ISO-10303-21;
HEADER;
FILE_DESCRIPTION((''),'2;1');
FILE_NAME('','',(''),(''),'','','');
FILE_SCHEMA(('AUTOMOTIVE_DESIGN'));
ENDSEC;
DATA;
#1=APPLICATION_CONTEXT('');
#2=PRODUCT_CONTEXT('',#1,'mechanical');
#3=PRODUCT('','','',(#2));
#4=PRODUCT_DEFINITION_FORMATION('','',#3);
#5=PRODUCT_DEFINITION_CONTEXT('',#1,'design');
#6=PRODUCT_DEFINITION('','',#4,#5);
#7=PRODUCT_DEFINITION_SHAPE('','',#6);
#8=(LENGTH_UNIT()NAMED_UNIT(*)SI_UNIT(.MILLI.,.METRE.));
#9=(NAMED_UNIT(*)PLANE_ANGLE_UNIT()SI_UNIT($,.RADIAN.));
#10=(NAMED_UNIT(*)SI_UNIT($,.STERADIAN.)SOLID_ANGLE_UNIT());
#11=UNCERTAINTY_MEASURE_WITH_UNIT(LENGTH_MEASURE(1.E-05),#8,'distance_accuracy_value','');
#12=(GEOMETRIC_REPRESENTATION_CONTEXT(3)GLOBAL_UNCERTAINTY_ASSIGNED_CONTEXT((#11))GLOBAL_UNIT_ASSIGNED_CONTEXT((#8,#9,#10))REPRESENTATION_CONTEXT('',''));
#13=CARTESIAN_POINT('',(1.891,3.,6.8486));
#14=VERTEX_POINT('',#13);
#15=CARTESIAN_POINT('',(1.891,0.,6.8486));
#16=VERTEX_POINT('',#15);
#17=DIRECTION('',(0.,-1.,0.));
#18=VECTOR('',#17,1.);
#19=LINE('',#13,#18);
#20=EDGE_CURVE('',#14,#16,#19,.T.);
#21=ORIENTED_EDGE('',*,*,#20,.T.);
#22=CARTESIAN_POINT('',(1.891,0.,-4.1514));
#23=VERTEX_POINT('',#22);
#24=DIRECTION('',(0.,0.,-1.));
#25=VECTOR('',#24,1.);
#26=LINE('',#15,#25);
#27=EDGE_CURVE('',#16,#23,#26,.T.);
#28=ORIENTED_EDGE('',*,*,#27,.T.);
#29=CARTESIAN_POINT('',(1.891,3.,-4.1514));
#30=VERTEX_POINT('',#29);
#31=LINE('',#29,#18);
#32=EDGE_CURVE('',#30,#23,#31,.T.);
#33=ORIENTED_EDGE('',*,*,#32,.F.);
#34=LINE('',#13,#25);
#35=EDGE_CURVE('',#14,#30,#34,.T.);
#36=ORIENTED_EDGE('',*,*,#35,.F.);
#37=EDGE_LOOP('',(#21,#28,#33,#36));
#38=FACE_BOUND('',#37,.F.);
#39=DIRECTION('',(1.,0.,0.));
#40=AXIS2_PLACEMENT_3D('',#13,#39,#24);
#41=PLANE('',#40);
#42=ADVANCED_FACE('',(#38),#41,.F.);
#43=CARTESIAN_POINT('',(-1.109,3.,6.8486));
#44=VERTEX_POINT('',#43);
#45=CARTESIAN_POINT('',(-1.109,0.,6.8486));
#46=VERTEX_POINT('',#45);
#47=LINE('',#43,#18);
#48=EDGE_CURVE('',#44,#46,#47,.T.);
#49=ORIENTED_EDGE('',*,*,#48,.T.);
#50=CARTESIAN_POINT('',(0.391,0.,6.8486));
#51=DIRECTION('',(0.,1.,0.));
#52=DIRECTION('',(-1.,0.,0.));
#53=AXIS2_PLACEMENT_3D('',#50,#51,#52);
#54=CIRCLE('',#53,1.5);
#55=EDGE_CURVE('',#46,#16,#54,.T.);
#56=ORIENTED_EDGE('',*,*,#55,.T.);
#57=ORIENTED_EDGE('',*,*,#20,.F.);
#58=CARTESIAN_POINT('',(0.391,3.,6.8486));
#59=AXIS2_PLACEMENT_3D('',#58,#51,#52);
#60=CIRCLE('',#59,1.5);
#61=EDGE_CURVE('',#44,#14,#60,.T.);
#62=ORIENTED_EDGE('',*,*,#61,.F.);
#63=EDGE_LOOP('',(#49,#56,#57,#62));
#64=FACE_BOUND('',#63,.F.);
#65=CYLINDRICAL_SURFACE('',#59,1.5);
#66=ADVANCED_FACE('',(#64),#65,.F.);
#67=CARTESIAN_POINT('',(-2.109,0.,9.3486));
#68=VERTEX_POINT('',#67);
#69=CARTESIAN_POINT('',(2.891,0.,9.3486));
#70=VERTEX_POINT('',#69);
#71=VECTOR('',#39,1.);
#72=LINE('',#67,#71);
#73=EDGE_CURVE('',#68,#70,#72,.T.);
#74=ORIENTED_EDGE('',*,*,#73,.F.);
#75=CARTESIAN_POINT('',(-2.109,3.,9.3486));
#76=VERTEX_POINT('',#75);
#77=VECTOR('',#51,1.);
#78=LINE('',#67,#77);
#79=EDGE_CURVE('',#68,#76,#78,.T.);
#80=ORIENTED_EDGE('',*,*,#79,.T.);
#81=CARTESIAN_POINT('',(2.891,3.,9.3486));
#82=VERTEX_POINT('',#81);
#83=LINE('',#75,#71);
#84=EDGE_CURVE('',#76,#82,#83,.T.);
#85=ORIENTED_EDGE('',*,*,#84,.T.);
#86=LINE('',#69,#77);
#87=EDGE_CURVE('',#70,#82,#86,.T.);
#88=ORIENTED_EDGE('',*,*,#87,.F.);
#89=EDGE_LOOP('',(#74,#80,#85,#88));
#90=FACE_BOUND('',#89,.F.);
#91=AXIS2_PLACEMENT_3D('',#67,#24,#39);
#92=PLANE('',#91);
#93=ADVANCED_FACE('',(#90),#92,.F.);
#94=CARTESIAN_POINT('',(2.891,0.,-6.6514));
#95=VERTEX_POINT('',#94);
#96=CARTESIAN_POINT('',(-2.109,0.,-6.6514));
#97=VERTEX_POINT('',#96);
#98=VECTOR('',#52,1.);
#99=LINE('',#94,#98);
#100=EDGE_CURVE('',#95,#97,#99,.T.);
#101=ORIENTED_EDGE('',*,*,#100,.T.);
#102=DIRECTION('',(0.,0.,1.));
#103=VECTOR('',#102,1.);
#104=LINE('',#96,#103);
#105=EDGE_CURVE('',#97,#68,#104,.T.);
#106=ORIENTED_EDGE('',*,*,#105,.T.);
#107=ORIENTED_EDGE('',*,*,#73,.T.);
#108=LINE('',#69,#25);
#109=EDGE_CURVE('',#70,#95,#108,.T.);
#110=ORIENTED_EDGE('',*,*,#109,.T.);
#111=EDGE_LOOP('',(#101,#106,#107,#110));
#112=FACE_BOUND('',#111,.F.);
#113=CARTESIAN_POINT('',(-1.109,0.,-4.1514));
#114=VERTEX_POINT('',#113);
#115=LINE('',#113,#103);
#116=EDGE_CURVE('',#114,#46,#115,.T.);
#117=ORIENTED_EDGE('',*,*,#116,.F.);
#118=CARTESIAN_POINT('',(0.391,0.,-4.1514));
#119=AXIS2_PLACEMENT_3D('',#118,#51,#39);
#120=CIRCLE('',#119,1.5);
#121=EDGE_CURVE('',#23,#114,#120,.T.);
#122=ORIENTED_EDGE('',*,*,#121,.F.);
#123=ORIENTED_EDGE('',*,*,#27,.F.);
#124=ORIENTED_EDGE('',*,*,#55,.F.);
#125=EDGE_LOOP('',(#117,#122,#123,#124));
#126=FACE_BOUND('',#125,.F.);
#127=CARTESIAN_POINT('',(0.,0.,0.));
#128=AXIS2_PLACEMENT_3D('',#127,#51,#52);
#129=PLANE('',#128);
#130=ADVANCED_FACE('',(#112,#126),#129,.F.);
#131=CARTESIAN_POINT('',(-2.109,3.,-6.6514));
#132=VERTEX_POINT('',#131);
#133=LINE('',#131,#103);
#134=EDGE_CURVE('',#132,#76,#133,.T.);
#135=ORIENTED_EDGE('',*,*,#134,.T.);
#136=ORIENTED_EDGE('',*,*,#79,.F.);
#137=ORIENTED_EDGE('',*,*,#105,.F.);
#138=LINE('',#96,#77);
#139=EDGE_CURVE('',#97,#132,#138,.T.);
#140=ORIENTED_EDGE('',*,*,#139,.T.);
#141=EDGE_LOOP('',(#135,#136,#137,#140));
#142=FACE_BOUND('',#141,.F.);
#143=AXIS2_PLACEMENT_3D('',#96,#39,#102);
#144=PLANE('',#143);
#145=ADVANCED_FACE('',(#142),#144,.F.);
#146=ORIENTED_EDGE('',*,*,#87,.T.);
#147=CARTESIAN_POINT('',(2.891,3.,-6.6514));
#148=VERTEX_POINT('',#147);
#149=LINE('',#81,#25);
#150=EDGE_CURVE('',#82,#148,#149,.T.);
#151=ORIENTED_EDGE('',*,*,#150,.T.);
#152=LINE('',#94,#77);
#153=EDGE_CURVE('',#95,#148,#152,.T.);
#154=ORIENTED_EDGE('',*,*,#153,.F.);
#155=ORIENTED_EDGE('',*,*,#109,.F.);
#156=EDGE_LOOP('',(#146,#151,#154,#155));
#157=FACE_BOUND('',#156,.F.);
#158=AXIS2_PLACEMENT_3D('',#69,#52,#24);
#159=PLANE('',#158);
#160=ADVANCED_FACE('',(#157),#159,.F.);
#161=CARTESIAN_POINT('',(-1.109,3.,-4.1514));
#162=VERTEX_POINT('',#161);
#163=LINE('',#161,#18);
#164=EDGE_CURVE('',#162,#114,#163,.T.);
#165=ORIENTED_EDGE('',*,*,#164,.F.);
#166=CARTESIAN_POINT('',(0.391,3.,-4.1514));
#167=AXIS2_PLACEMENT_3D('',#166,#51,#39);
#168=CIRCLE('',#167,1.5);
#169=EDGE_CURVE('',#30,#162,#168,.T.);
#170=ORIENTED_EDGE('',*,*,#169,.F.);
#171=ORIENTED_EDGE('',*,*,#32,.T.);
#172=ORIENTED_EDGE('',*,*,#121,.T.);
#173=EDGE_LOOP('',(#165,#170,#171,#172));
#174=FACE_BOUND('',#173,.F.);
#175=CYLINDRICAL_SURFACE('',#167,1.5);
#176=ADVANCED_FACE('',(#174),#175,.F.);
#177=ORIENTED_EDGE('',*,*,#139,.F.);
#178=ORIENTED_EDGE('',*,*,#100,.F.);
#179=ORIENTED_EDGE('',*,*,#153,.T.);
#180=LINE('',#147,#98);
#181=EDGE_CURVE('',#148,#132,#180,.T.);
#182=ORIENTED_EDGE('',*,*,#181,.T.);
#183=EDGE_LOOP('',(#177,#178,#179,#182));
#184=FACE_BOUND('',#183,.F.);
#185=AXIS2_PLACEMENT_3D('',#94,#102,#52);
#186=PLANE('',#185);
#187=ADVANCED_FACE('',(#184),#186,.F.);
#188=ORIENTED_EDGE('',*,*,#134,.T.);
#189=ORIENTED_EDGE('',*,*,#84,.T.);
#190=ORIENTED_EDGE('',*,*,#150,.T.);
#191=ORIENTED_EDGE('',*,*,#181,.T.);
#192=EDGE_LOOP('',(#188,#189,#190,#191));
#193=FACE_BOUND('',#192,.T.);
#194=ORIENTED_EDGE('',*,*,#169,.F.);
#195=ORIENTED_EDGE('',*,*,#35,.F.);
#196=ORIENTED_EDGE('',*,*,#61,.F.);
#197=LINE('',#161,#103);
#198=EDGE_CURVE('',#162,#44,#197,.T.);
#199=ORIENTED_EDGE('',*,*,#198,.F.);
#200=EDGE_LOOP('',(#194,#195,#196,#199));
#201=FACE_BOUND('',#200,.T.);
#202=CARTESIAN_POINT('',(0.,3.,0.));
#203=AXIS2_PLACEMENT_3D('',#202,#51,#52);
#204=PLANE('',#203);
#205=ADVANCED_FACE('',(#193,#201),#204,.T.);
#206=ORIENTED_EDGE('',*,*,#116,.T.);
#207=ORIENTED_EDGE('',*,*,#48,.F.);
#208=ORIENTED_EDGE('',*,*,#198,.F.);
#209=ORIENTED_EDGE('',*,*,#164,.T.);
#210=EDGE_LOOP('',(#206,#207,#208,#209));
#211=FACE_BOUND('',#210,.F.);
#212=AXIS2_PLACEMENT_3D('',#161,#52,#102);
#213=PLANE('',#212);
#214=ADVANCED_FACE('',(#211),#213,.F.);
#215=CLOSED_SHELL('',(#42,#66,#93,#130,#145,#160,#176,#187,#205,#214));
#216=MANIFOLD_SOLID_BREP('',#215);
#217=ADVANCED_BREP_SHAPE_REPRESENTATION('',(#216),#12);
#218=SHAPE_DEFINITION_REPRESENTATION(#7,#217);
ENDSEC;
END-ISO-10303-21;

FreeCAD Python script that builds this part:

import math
import FreeCAD as App
import Part
import Sketcher
from FreeCAD import Vector
Q = App.Units.Quantity


def add_polygon(sketch, points):
    """Adds a closed chain of lines whose ends are joined by coincident constraints."""
    first, n = sketch.GeometryCount, len(points)
    for a, b in zip(points, points[1:] + points[:1]):
        sketch.addGeometry(Part.LineSegment(App.Vector(*a, 0), App.Vector(*b, 0)), False)
    for i in range(n):
        sketch.addConstraint(Sketcher.Constraint("Coincident", first + i, 2, first + (i + 1) % n, 1))

doc = App.newDocument("Part")
body = doc.addObject("PartDesign::Body", "Body")

sketch1 = doc.addObject("Sketcher::SketchObject", "Sketch")
body.addObject(sketch1)
sketch1.AttachmentSupport = (doc.XZ_Plane, [""])
sketch1.MapMode = "FlatFace"
add_polygon(sketch1, [(-2, -7), (-2, 9), (3, 9), (3, -7)])
sketch1.addConstraint([
    Sketcher.Constraint("Vertical", 0),
    Sketcher.Constraint("Horizontal", 1),
    Sketcher.Constraint("Vertical", 2),
    Sketcher.Constraint("Horizontal", 3),
    Sketcher.Constraint("DistanceX", 1, 1, 1, 2, Q("5 mm")),
    Sketcher.Constraint("DistanceY", 0, 1, 0, 2, Q("16 mm")),
    Sketcher.Constraint("DistanceX", 0, 2, -1, 1, Q("2.109 mm")),
    Sketcher.Constraint("DistanceY", -1, 1, 0, 2, Q("9.3486 mm")),
])
pad1 = doc.addObject("PartDesign::Pad", "Pad")
body.addObject(pad1)
pad1.Profile = sketch1
pad1.Length = 3
pad1.Reversed = True

sketch2 = doc.addObject("Sketcher::SketchObject", "Sketch001")
body.addObject(sketch2)
sketch2.AttachmentSupport = (doc.XZ_Plane, [""])
sketch2.MapMode = "FlatFace"
sketch2.AttachmentOffset = App.Placement(Vector(0, 0, -3), App.Rotation())
sketch2.addGeometry([
    Part.ArcOfCircle(Part.Circle(Vector(0.4, 6.8, 0), Vector(0, 0, 1), 1.5), math.radians(0), math.radians(180)),
    Part.LineSegment(Vector(1.9, 6.8, 0), Vector(1.9, -4.2, 0)),
    Part.ArcOfCircle(Part.Circle(Vector(0.4, -4.2, 0), Vector(0, 0, 1), 1.5), math.radians(180), math.radians(360)),
    Part.LineSegment(Vector(-1.1, -4.2, 0), Vector(-1.1, 6.8, 0)),
], False)
sketch2.addConstraint([
    Sketcher.Constraint("Tangent", 0, 1, 1, 1),
    Sketcher.Constraint("Tangent", 1, 2, 2, 2),
    Sketcher.Constraint("Tangent", 2, 1, 3, 1),
    Sketcher.Constraint("Tangent", 3, 2, 0, 2),
    Sketcher.Constraint("Vertical", 1),
    Sketcher.Constraint("Vertical", 3),
    Sketcher.Constraint("Radius", 0, Q("1.5 mm")),
    Sketcher.Constraint("DistanceY", 1, 2, 1, 1, Q("11 mm")),
    Sketcher.Constraint("DistanceX", -1, 1, 0, 3, Q("0.391 mm")),
    Sketcher.Constraint("DistanceY", -1, 1, 0, 3, Q("6.8486 mm")),
])
pocket1 = doc.addObject("PartDesign::Pocket", "Pocket")
body.addObject(pocket1)
pocket1.Profile = sketch2
pocket1.Length = 3
pocket1.Reversed = True

doc.recompute()
